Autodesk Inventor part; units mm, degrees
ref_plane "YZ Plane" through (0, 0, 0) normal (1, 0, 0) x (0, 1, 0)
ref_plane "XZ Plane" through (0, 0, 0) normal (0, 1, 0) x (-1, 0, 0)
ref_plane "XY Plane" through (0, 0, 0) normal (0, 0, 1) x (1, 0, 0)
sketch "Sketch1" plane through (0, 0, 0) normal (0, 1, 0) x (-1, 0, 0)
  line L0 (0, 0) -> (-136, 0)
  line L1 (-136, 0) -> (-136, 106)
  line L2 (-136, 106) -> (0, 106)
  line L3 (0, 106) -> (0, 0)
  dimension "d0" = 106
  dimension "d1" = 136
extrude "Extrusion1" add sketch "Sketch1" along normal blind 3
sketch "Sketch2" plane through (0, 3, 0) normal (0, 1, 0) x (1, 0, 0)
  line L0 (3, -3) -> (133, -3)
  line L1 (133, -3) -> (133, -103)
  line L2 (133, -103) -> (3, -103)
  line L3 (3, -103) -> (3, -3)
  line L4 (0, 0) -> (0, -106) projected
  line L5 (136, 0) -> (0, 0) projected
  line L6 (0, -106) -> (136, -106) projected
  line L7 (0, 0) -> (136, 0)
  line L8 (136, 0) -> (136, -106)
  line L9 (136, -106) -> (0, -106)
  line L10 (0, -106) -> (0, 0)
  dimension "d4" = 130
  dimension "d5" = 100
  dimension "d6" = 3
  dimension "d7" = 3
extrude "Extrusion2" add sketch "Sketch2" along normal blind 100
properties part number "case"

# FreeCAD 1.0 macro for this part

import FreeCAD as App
import Part
import Sketcher

V = App.Vector

doc = App.newDocument("Part")
body = doc.addObject("PartDesign::Body", "Body")

# Sketch on XZ plane
sketch1 = doc.addObject("Sketcher::SketchObject", "Sketch")
body.addObject(sketch1)
sketch1.AttachmentSupport = (doc.XZ_Plane, [""])
sketch1.MapMode = "FlatFace"
sketch1.addGeometry([
    Part.LineSegment(V(136, 0, 0), V(0, 0, 0)),
    Part.LineSegment(V(0, 0, 0), V(0, 106, 0)),
    Part.LineSegment(V(0, 106, 0), V(136, 106, 0)),
    Part.LineSegment(V(136, 106, 0), V(136, 0, 0)),
], False)
sketch1.addConstraint([
    Sketcher.Constraint("Coincident", 0, 2, 1, 1),
    Sketcher.Constraint("Coincident", 1, 2, 2, 1),
    Sketcher.Constraint("Coincident", 2, 2, 3, 1),
    Sketcher.Constraint("Coincident", 3, 2, 0, 1),
    Sketcher.Constraint("Horizontal", 0),
    Sketcher.Constraint("Vertical", 1),
    Sketcher.Constraint("Horizontal", 2),
    Sketcher.Constraint("Vertical", 3),
    Sketcher.Constraint("Coincident", 0, 2, -1, 1),
    Sketcher.Constraint("DistanceX", 0, 2, 0, 1, 136.0),
    Sketcher.Constraint("DistanceY", 1, 1, 1, 2, 106.0),
])
pad1 = doc.addObject("PartDesign::Pad", "Pad")
body.addObject(pad1)
pad1.Profile = sketch1
pad1.Length = 3
pad1.Reversed = True

# Sketch on XZ plane
sketch2 = doc.addObject("Sketcher::SketchObject", "Sketch001")
body.addObject(sketch2)
sketch2.AttachmentSupport = (doc.XZ_Plane, [""])
sketch2.MapMode = "FlatFace"
sketch2.AttachmentOffset = App.Placement(V(0, 0, -3), App.Rotation())
sketch2.addGeometry([
    Part.LineSegment(V(136, 0, 0), V(0, 0, 0)),  # 0
    Part.LineSegment(V(0, 0, 0), V(0, 106, 0)),  # 1
    Part.LineSegment(V(0, 106, 0), V(136, 106, 0)),  # 2
    Part.LineSegment(V(136, 106, 0), V(136, 0, 0)),  # 3
    Part.LineSegment(V(3, 103, 0), V(3, 3, 0)),  # 4
    Part.LineSegment(V(3, 3, 0), V(133, 3, 0)),  # 5
    Part.LineSegment(V(133, 3, 0), V(133, 103, 0)),  # 6
    Part.LineSegment(V(133, 103, 0), V(3, 103, 0)),  # 7
], False)
sketch2.addConstraint([
    Sketcher.Constraint("Coincident", 0, 2, 1, 1),
    Sketcher.Constraint("Coincident", 1, 2, 2, 1),
    Sketcher.Constraint("Coincident", 2, 2, 3, 1),
    Sketcher.Constraint("Coincident", 3, 2, 0, 1),
    Sketcher.Constraint("Coincident", 4, 2, 5, 1),
    Sketcher.Constraint("Coincident", 5, 2, 6, 1),
    Sketcher.Constraint("Coincident", 6, 2, 7, 1),
    Sketcher.Constraint("Coincident", 7, 2, 4, 1),
    Sketcher.Constraint("Horizontal", 0),
    Sketcher.Constraint("Vertical", 1),
    Sketcher.Constraint("Horizontal", 2),
    Sketcher.Constraint("Vertical", 3),
    Sketcher.Constraint("Vertical", 4),
    Sketcher.Constraint("Horizontal", 5),
    Sketcher.Constraint("Vertical", 6),
    Sketcher.Constraint("Horizontal", 7),
    Sketcher.Constraint("Coincident", 0, 2, -1, 1),
    Sketcher.Constraint("DistanceX", 5, 1, 5, 2, 130.0),
    Sketcher.Constraint("DistanceY", 4, 2, 4, 1, 100.0),
    Sketcher.Constraint("DistanceX", -1, 1, 4, 2, 3.0),
    Sketcher.Constraint("DistanceY", -1, 1, 4, 2, 3.0),
    Sketcher.Constraint("DistanceX", 5, 2, 3, 2, 3.0),
    Sketcher.Constraint("DistanceY", 6, 2, 2, 2, 3.0),
])
pad2 = doc.addObject("PartDesign::Pad", "Pad001")
body.addObject(pad2)
pad2.Profile = sketch2
pad2.Length = 100
pad2.Reversed = True

doc.recompute()
